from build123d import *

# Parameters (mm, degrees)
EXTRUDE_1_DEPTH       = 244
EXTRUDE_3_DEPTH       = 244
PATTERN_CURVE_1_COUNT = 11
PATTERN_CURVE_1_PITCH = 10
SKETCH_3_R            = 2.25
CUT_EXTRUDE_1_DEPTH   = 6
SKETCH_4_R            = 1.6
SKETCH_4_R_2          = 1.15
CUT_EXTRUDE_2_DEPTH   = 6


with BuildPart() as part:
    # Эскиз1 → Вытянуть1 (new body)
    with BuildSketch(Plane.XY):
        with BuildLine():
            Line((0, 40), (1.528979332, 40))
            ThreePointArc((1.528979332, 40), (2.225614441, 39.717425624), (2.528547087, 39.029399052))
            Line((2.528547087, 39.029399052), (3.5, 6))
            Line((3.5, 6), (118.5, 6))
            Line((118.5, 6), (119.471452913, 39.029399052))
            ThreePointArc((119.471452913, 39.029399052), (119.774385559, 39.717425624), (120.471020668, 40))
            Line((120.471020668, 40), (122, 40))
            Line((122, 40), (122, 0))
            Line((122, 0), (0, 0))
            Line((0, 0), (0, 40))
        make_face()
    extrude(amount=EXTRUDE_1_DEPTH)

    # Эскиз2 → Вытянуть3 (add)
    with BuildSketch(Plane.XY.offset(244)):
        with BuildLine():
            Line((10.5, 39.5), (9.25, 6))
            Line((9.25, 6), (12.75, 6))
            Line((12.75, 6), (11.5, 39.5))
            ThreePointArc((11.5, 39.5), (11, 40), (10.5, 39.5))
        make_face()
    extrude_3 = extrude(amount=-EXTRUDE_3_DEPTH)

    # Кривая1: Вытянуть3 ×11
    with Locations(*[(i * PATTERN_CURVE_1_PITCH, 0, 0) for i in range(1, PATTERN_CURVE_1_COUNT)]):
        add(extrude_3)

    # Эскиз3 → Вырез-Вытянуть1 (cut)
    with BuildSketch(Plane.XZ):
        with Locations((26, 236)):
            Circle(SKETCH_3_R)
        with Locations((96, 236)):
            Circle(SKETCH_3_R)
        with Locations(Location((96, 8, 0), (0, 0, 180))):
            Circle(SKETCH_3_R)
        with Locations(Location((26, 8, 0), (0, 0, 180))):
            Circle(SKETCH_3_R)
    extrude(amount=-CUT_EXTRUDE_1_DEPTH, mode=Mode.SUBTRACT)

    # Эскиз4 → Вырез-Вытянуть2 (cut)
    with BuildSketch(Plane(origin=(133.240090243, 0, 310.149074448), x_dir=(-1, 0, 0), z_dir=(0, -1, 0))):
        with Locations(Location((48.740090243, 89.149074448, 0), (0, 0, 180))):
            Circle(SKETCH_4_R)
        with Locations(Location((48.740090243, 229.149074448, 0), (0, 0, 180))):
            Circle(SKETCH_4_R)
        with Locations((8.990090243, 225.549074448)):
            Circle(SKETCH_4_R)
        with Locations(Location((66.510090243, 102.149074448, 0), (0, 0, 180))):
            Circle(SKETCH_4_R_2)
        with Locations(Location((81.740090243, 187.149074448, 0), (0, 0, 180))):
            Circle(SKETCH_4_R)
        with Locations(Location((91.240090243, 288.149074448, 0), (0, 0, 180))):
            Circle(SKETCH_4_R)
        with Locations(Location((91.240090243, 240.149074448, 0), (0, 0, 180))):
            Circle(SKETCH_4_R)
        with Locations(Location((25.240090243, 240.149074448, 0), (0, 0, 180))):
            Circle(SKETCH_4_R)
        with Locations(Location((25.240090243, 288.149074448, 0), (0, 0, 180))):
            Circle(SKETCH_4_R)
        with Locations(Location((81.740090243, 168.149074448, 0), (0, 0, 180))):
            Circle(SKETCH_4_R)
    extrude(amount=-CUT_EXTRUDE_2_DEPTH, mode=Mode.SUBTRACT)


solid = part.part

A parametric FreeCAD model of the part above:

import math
import FreeCAD as App
import Part
import Sketcher
from FreeCAD import Vector
Q = App.Units.Quantity

doc = App.newDocument("Part")
body = doc.addObject("PartDesign::Body", "Body")

sketch1 = body.newObject("Sketcher::SketchObject", "Sketch")
sketch1.AttachmentSupport = (doc.getObject("XY_Plane"), [""])
sketch1.MapMode = "FlatFace"
sketch1.addGeometry(Part.LineSegment(Vector(1.5, 40, 0), Vector(0, 40, 0)), False)
sketch1.addGeometry(Part.LineSegment(Vector(0, 40, 0), Vector(0, 0, 0)), False)
sketch1.addGeometry(Part.LineSegment(Vector(0, 0, 0), Vector(122, 0, 0)), False)
sketch1.addGeometry(Part.LineSegment(Vector(122, 0, 0), Vector(122, 40, 0)), False)
sketch1.addGeometry(Part.LineSegment(Vector(122, 40, 0), Vector(120.5, 40, 0)), False)
sketch1.addGeometry(Part.ArcOfCircle(Part.Circle(Vector(120.5, 39, 0), Vector(0, 0, 1), 1), math.radians(90), math.radians(178)), False)
sketch1.addGeometry(Part.LineSegment(Vector(119.5, 39, 0), Vector(118.5, 6, 0)), False)
sketch1.addGeometry(Part.LineSegment(Vector(118.5, 6, 0), Vector(3.5, 6, 0)), False)
sketch1.addGeometry(Part.LineSegment(Vector(3.5, 6, 0), Vector(2.5, 39, 0)), False)
sketch1.addGeometry(Part.ArcOfCircle(Part.Circle(Vector(1.5, 39, 0), Vector(0, 0, 1), 1), math.radians(2), math.radians(90)), False)
sketch1.addConstraint(Sketcher.Constraint("Coincident", 0, 2, 1, 1))
sketch1.addConstraint(Sketcher.Constraint("Coincident", 1, 2, 2, 1))
sketch1.addConstraint(Sketcher.Constraint("Coincident", 2, 2, 3, 1))
sketch1.addConstraint(Sketcher.Constraint("Coincident", 3, 2, 4, 1))
sketch1.addConstraint(Sketcher.Constraint("Tangent", 4, 2, 5, 1))
sketch1.addConstraint(Sketcher.Constraint("Tangent", 5, 2, 6, 1))
sketch1.addConstraint(Sketcher.Constraint("Coincident", 6, 2, 7, 1))
sketch1.addConstraint(Sketcher.Constraint("Coincident", 7, 2, 8, 1))
sketch1.addConstraint(Sketcher.Constraint("Tangent", 8, 2, 9, 1))
sketch1.addConstraint(Sketcher.Constraint("Tangent", 9, 2, 0, 1))
sketch1.addConstraint(Sketcher.Constraint("Horizontal", 0))
sketch1.addConstraint(Sketcher.Constraint("Vertical", 1))
sketch1.addConstraint(Sketcher.Constraint("Horizontal", 2))
sketch1.addConstraint(Sketcher.Constraint("Vertical", 3))
sketch1.addConstraint(Sketcher.Constraint("Horizontal", 4))
sketch1.addConstraint(Sketcher.Constraint("Horizontal", 7))
sketch1.addConstraint(Sketcher.Constraint("Coincident", 1, 2, -1, 1))
sketch1.addConstraint(Sketcher.Constraint("Equal", 5, 9))
sketch1.addConstraint(Sketcher.Constraint("Horizontal", 5, 3, 9, 3))
sketch1.addConstraint(Sketcher.Constraint("Horizontal", 5, 2, 8, 2))
sketch1.addConstraint(Sketcher.Constraint("Equal", 0, 4))
sketch1.addConstraint(Sketcher.Constraint("Radius", 5, Q("1 mm")))
sketch1.addConstraint(Sketcher.Constraint("DistanceX", 2, 1, 2, 2, Q("122 mm")))
sketch1.addConstraint(Sketcher.Constraint("DistanceX", 7, 2, 7, 1, Q("115 mm")))
sketch1.addConstraint(Sketcher.Constraint("DistanceY", 1, 2, 1, 1, Q("40 mm")))
sketch1.addConstraint(Sketcher.Constraint("DistanceY", -1, 1, 6, 2, Q("6 mm")))
sketch1.addConstraint(Sketcher.Constraint("DistanceX", 0, 2, 0, 1, Q("1.528979 mm")))
pad1 = body.newObject("PartDesign::Pad", "Pad")
pad1.Profile = sketch1
pad1.Length = 244

sketch2 = body.newObject("Sketcher::SketchObject", "Sketch001")
sketch2.AttachmentSupport = (doc.getObject("XY_Plane"), [""])
sketch2.MapMode = "FlatFace"
sketch2.AttachmentOffset = App.Placement(Vector(0, 0, 244), App.Rotation())
sketch2.addGeometry(Part.LineSegment(Vector(10.5, 39.5, 0), Vector(9.2, 6, 0)), False)
sketch2.addGeometry(Part.LineSegment(Vector(9.2, 6, 0), Vector(12.8, 6, 0)), False)
sketch2.addGeometry(Part.LineSegment(Vector(12.8, 6, 0), Vector(11.5, 39.5, 0)), False)
sketch2.addGeometry(Part.ArcOfCircle(Part.Circle(Vector(11, 39.5, 0), Vector(0, 0, 1), 0.5), math.radians(0), math.radians(180)), False)
sketch2.addConstraint(Sketcher.Constraint("Coincident", 0, 2, 1, 1))
sketch2.addConstraint(Sketcher.Constraint("Coincident", 1, 2, 2, 1))
sketch2.addConstraint(Sketcher.Constraint("Coincident", 2, 2, 3, 1))
sketch2.addConstraint(Sketcher.Constraint("Coincident", 3, 2, 0, 1))
sketch2.addConstraint(Sketcher.Constraint("Horizontal", 1))
sketch2.addConstraint(Sketcher.Constraint("Horizontal", 3, 3, 2, 2))
sketch2.addConstraint(Sketcher.Constraint("Horizontal", 2, 2, 3, 2))
sketch2.addConstraint(Sketcher.Constraint("Equal", 0, 2))
sketch2.addConstraint(Sketcher.Constraint("Radius", 3, Q("0.5 mm")))
sketch2.addConstraint(Sketcher.Constraint("DistanceX", 1, 1, 1, 2, Q("3.5 mm")))
sketch2.addConstraint(Sketcher.Constraint("DistanceX", -1, 1, 3, 3, Q("11 mm")))
sketch2.addConstraint(Sketcher.Constraint("DistanceY", -1, 1, 0, 2, Q("6 mm")))
sketch2.addConstraint(Sketcher.Constraint("DistanceY", -1, 1, 3, 3, Q("39.5 mm")))
pad2 = body.newObject("PartDesign::Pad", "Pad001")
pad2.Profile = sketch2
pad2.Length = 244
pad2.Reversed = True
doc.recompute()

linearpattern = body.newObject("PartDesign::LinearPattern", "LinearPattern")
linearpattern.Originals = [pad2]
linearpattern.Direction = (doc.getObject("X_Axis"), [""])
linearpattern.Mode = "offset"
linearpattern.Offset = 10
linearpattern.Occurrences = 11
body.Tip = linearpattern

sketch3 = body.newObject("Sketcher::SketchObject", "Sketch002")
sketch3.AttachmentSupport = (doc.getObject("XZ_Plane"), [""])
sketch3.MapMode = "FlatFace"
sketch3.addGeometry(Part.Circle(Vector(26, 236, 0), Vector(0, 0, 1), 2.2), False)
sketch3.addGeometry(Part.Circle(Vector(96, 236, 0), Vector(0, 0, 1), 2.2), False)
sketch3.addGeometry(Part.Circle(Vector(96, 8, 0), Vector(0, 0, 1), 2.2), False)
sketch3.addGeometry(Part.Circle(Vector(26, 8, 0), Vector(0, 0, 1), 2.2), False)
sketch3.addConstraint(Sketcher.Constraint("Equal", 0, 1))
sketch3.addConstraint(Sketcher.Constraint("Equal", 1, 2))
sketch3.addConstraint(Sketcher.Constraint("Equal", 2, 3))
sketch3.addConstraint(Sketcher.Constraint("Horizontal", 0, 3, 1, 3))
sketch3.addConstraint(Sketcher.Constraint("Horizontal", 2, 3, 3, 3))
sketch3.addConstraint(Sketcher.Constraint("Vertical", 1, 3, 2, 3))
sketch3.addConstraint(Sketcher.Constraint("Vertical", 0, 3, 3, 3))
sketch3.addConstraint(Sketcher.Constraint("Diameter", 0, Q("4.5 mm")))
sketch3.addConstraint(Sketcher.Constraint("DistanceX", -1, 1, 0, 3, Q("26 mm")))
sketch3.addConstraint(Sketcher.Constraint("DistanceY", -1, 1, 0, 3, Q("236 mm")))
sketch3.addConstraint(Sketcher.Constraint("DistanceX", -1, 1, 1, 3, Q("96 mm")))
sketch3.addConstraint(Sketcher.Constraint("DistanceY", -1, 1, 2, 3, Q("8 mm")))
pocket1 = body.newObject("PartDesign::Pocket", "Pocket")
pocket1.Profile = sketch3
pocket1.Length = 6

sketch4 = body.newObject("Sketcher::SketchObject", "Sketch003")
sketch4.AttachmentSupport = (doc.getObject("XZ_Plane"), [""])
sketch4.MapMode = "FlatFace"
sketch4.addGeometry(Part.Circle(Vector(84.5, 221, 0), Vector(0, 0, 1), 1.6), False)
sketch4.addGeometry(Part.Circle(Vector(84.5, 81, 0), Vector(0, 0, 1), 1.6), False)
sketch4.addGeometry(Part.Circle(Vector(124.2, 84.6, 0), Vector(0, 0, 1), 1.6), False)
sketch4.addGeometry(Part.Circle(Vector(66.7, 208, 0), Vector(0, 0, 1), 1.1), False)
sketch4.addGeometry(Part.Circle(Vector(51.5, 123, 0), Vector(0, 0, 1), 1.6), False)
sketch4.addGeometry(Part.Circle(Vector(42, 22, 0), Vector(0, 0, 1), 1.6), False)
sketch4.addGeometry(Part.Circle(Vector(42, 70, 0), Vector(0, 0, 1), 1.6), False)
sketch4.addGeometry(Part.Circle(Vector(108, 70, 0), Vector(0, 0, 1), 1.6), False)
sketch4.addGeometry(Part.Circle(Vector(108, 22, 0), Vector(0, 0, 1), 1.6), False)
sketch4.addGeometry(Part.Circle(Vector(51.5, 142, 0), Vector(0, 0, 1), 1.6), False)
sketch4.addConstraint(Sketcher.Constraint("Equal", 0, 1))
sketch4.addConstraint(Sketcher.Constraint("Equal", 1, 2))
sketch4.addConstraint(Sketcher.Constraint("Equal", 2, 4))
sketch4.addConstraint(Sketcher.Constraint("Equal", 4, 5))
sketch4.addConstraint(Sketcher.Constraint("Equal", 5, 6))
sketch4.addConstraint(Sketcher.Constraint("Equal", 6, 7))
sketch4.addConstraint(Sketcher.Constraint("Equal", 7, 8))
sketch4.addConstraint(Sketcher.Constraint("Equal", 8, 9))
sketch4.addConstraint(Sketcher.Constraint("Horizontal", 6, 3, 7, 3))
sketch4.addConstraint(Sketcher.Constraint("Horizontal", 5, 3, 8, 3))
sketch4.addConstraint(Sketcher.Constraint("Vertical", 0, 3, 1, 3))
sketch4.addConstraint(Sketcher.Constraint("Vertical", 5, 3, 6, 3))
sketch4.addConstraint(Sketcher.Constraint("Vertical", 7, 3, 8, 3))
sketch4.addConstraint(Sketcher.Constraint("Vertical", 4, 3, 9, 3))
sketch4.addConstraint(Sketcher.Constraint("Diameter", 0, Q("3.2 mm")))
sketch4.addConstraint(Sketcher.Constraint("Diameter", 3, Q("2.3 mm")))
sketch4.addConstraint(Sketcher.Constraint("DistanceY", -1, 1, 0, 3, Q("221 mm")))
sketch4.addConstraint(Sketcher.Constraint("DistanceY", -1, 1, 1, 3, Q("81 mm")))
sketch4.addConstraint(Sketcher.Constraint("DistanceY", -1, 1, 3, 3, Q("208 mm")))
sketch4.addConstraint(Sketcher.Constraint("DistanceY", -1, 1, 4, 3, Q("123 mm")))
sketch4.addConstraint(Sketcher.Constraint("DistanceX", -1, 1, 5, 3, Q("42 mm")))
sketch4.addConstraint(Sketcher.Constraint("DistanceY", -1, 1, 5, 3, Q("22 mm")))
sketch4.addConstraint(Sketcher.Constraint("DistanceY", -1, 1, 6, 3, Q("70 mm")))
sketch4.addConstraint(Sketcher.Constraint("DistanceX", -1, 1, 7, 3, Q("108 mm")))
sketch4.addConstraint(Sketcher.Constraint("DistanceY", -1, 1, 9, 3, Q("142 mm")))
sketch4.addConstraint(Sketcher.Constraint("DistanceX", 4, 3, 1, 3, Q("33 mm")))
sketch4.addConstraint(Sketcher.Constraint("DistanceX", -1, 1, 0, 3, Q("84.5 mm")))
sketch4.addConstraint(Sketcher.Constraint("DistanceY", -1, 1, 2, 3, Q("84.6 mm")))
sketch4.addConstraint(Sketcher.Constraint("DistanceX", -1, 1, 2, 3, Q("124.25 mm")))
sketch4.addConstraint(Sketcher.Constraint("DistanceX", -1, 1, 3, 3, Q("66.73 mm")))
pocket2 = body.newObject("PartDesign::Pocket", "Pocket001")
pocket2.Profile = sketch4
pocket2.Length = 6

doc.recompute()
